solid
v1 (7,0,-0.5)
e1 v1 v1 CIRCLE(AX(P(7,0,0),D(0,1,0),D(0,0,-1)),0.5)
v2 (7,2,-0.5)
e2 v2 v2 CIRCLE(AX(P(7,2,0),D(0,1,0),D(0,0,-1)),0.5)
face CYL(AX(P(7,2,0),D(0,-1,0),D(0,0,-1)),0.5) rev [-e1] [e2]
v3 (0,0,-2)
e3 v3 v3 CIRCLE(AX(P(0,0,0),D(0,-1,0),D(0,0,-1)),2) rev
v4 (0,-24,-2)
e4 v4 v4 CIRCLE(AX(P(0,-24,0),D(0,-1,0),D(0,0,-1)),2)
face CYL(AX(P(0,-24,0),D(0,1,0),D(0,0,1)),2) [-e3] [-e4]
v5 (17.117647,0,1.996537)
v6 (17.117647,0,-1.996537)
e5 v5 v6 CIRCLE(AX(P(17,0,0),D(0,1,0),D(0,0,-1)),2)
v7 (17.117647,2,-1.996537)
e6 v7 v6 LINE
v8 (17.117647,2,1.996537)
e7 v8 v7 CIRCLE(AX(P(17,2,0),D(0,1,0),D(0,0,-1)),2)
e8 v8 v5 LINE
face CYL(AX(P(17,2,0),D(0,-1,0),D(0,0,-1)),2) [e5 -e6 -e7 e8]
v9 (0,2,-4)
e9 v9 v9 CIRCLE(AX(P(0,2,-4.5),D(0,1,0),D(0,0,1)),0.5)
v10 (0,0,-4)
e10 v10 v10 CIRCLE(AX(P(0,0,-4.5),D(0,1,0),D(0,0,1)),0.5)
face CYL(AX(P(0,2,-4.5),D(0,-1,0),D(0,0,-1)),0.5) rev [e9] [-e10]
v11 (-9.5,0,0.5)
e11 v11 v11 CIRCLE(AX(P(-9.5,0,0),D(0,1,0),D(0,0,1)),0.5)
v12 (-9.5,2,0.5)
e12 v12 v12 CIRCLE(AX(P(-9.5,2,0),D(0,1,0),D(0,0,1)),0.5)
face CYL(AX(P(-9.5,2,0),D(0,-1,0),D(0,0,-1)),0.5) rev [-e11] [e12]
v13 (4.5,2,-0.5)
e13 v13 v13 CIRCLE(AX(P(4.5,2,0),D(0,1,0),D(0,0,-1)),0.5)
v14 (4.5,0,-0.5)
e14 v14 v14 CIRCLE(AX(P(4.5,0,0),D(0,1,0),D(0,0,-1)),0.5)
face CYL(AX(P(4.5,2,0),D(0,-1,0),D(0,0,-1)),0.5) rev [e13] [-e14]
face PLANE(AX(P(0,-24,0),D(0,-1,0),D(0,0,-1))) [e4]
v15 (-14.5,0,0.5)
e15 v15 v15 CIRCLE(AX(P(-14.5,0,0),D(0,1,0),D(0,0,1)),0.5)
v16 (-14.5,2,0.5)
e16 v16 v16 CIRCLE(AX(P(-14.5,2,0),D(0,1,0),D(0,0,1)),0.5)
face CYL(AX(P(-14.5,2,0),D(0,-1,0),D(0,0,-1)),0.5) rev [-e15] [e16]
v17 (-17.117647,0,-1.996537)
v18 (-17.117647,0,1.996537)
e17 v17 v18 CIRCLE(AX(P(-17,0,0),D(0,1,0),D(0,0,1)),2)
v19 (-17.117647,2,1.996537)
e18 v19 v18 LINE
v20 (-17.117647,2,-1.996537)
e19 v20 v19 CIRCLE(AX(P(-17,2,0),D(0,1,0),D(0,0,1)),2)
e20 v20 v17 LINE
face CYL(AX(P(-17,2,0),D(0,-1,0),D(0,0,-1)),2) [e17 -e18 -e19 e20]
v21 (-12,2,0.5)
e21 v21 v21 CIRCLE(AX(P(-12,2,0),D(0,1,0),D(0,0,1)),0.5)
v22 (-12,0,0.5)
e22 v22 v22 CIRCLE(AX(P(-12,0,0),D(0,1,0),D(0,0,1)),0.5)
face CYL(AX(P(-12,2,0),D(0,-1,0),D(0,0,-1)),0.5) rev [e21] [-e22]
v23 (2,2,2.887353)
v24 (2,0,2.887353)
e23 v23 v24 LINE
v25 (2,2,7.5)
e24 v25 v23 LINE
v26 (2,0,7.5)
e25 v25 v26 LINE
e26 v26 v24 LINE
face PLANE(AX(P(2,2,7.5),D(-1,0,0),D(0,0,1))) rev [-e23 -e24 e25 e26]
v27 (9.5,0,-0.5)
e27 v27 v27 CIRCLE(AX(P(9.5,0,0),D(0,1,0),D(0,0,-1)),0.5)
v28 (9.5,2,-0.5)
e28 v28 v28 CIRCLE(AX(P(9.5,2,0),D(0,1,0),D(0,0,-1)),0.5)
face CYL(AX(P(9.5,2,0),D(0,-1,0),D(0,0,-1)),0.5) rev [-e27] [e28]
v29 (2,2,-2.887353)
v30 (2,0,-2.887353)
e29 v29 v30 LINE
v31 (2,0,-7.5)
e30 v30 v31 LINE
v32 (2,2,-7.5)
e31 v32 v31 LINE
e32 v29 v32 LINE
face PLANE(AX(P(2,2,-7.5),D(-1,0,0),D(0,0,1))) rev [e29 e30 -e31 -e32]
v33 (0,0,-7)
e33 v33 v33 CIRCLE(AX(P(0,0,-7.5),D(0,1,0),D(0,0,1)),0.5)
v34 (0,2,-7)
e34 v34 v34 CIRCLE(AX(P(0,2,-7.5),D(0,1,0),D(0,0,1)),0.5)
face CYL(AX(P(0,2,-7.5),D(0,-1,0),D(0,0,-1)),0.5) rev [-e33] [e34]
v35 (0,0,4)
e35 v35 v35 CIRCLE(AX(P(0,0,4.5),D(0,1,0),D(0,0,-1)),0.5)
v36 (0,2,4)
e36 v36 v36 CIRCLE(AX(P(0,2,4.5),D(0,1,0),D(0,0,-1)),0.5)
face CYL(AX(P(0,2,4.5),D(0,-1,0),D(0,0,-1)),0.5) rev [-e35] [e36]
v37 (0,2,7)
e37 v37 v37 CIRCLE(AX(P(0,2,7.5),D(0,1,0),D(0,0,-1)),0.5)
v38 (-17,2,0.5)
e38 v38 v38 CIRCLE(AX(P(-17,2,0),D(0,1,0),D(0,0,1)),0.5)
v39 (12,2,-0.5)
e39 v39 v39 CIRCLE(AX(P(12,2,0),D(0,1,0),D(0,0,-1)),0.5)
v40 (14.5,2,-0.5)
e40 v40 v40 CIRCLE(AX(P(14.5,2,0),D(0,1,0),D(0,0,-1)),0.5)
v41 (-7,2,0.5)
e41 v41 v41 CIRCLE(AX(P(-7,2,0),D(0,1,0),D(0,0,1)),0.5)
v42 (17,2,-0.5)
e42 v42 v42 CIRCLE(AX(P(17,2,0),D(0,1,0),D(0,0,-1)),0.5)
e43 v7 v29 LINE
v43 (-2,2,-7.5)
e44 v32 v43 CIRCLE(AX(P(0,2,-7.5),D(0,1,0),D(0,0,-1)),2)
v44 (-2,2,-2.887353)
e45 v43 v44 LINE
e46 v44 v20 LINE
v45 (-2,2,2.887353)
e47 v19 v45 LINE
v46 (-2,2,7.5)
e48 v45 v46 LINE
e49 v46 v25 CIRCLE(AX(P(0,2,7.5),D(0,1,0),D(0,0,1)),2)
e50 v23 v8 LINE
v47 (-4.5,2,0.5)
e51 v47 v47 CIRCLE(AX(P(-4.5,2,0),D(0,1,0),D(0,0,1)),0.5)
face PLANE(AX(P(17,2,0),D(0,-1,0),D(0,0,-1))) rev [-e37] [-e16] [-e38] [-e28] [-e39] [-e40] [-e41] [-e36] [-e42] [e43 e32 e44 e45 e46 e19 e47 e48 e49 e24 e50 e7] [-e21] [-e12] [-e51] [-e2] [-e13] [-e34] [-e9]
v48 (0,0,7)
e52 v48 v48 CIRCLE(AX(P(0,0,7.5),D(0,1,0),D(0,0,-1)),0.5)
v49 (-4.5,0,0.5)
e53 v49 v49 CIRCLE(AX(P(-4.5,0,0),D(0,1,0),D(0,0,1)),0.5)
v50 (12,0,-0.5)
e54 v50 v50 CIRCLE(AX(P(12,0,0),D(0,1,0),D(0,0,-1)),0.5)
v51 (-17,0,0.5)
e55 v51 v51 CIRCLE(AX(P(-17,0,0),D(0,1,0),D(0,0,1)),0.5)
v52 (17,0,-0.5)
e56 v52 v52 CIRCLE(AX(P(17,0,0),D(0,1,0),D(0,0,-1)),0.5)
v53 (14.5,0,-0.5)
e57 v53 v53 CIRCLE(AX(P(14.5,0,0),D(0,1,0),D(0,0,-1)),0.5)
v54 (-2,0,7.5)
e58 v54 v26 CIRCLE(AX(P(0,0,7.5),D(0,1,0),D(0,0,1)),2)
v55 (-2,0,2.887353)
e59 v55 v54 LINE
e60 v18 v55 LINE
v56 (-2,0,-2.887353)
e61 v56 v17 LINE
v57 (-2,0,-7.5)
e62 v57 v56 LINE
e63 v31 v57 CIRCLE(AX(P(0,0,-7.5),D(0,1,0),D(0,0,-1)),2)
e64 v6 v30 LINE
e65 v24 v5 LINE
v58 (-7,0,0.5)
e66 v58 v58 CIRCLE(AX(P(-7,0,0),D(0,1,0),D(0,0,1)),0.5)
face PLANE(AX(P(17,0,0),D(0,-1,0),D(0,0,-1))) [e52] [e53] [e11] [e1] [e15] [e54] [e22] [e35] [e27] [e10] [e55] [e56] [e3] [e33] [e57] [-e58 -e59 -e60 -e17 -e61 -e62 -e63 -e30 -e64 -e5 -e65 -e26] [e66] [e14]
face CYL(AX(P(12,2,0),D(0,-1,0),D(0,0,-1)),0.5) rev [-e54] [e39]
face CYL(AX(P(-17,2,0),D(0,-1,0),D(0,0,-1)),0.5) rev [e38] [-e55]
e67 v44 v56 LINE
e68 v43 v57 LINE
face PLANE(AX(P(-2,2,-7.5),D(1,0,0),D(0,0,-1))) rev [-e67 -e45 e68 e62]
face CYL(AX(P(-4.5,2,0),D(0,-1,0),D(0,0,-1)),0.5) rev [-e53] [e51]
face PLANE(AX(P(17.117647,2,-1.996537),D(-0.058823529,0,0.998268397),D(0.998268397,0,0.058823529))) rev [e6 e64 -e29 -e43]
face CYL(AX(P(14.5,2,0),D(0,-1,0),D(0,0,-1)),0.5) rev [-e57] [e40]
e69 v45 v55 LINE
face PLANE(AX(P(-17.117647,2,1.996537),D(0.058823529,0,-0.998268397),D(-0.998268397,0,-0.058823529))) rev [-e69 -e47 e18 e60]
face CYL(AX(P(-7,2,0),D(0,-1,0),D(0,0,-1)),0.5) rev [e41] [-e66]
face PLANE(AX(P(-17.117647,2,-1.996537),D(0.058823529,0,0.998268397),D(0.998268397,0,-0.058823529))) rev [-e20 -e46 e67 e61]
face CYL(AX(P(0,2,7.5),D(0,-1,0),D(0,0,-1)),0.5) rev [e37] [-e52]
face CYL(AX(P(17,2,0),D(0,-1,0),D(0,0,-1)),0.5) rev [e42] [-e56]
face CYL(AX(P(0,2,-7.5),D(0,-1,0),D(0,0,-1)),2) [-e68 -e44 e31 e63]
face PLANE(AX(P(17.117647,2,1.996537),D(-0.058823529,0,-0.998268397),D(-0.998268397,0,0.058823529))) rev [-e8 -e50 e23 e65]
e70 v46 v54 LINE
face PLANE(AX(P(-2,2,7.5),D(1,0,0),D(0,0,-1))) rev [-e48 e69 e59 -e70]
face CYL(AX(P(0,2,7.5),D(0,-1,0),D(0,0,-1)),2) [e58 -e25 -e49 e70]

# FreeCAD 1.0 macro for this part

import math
import FreeCAD as App
import Part
import Sketcher

V = App.Vector
Q = App.Units.Quantity

doc = App.newDocument("Part")
body = doc.addObject("PartDesign::Body", "Body")

# Sketch on XZ plane
sketch1 = body.newObject("Sketcher::SketchObject", "Sketch")
sketch1.AttachmentSupport = (doc.getObject("XZ_Plane"), [""])
sketch1.MapMode = "FlatFace"
sketch1.addGeometry([
    Part.LineSegment(V(2, -2.9, 0), V(2, -7.5, 0)),  # 0
    Part.ArcOfCircle(Part.Circle(V(0, -7.5, 0), V(0, 0, 1), 2), math.radians(180), math.radians(360)),  # 1
    Part.LineSegment(V(-2, -7.5, 0), V(-2, -2.9, 0)),  # 2
    Part.LineSegment(V(-2, -2.9, 0), V(-17.1, -2, 0)),  # 3
    Part.ArcOfCircle(Part.Circle(V(-17, 0, 0), V(0, 0, 1), 2), math.radians(93), math.radians(267)),  # 4
    Part.LineSegment(V(-17.1, 2, 0), V(-2, 2.9, 0)),  # 5
    Part.LineSegment(V(-2, 2.9, 0), V(-2, 7.5, 0)),  # 6
    Part.ArcOfCircle(Part.Circle(V(0, 7.5, 0), V(0, 0, 1), 2), math.radians(0), math.radians(180)),  # 7
    Part.LineSegment(V(2, 7.5, 0), V(2, 2.9, 0)),  # 8
    Part.LineSegment(V(2, 2.9, 0), V(17.1, 2, 0)),  # 9
    Part.ArcOfCircle(Part.Circle(V(17, 0, 0), V(0, 0, 1), 2), math.radians(-87), math.radians(87)),  # 10
    Part.LineSegment(V(17.1, -2, 0), V(2, -2.9, 0)),  # 11
    Part.Circle(V(0, 7.5, 0), V(0, 0, 1), 0.5),  # 12
    Part.Circle(V(0, 4.5, 0), V(0, 0, 1), 0.5),  # 13
    Part.Circle(V(17, 0, 0), V(0, 0, 1), 0.5),  # 14
    Part.Circle(V(14.5, 0, 0), V(0, 0, 1), 0.5),  # 15
    Part.Circle(V(12, 0, 0), V(0, 0, 1), 0.5),  # 16
    Part.Circle(V(9.5, 0, 0), V(0, 0, 1), 0.5),  # 17
    Part.Circle(V(7, 0, 0), V(0, 0, 1), 0.5),  # 18
    Part.Circle(V(4.5, 0, 0), V(0, 0, 1), 0.5),  # 19
    Part.Circle(V(0, 0, 0), V(0, 0, 1), 2),  # 20
    Part.Circle(V(-4.5, 0, 0), V(0, 0, 1), 0.5),  # 21
    Part.Circle(V(-7, 0, 0), V(0, 0, 1), 0.5),  # 22
    Part.Circle(V(-9.5, 0, 0), V(0, 0, 1), 0.5),  # 23
    Part.Circle(V(-12, 0, 0), V(0, 0, 1), 0.5),  # 24
    Part.Circle(V(-14.5, 0, 0), V(0, 0, 1), 0.5),  # 25
    Part.Circle(V(-17, 0, 0), V(0, 0, 1), 0.5),  # 26
    Part.Circle(V(0, -4.5, 0), V(0, 0, 1), 0.5),  # 27
    Part.Circle(V(0, -7.5, 0), V(0, 0, 1), 0.5),  # 28
], False)
sketch1.addConstraint([
    Sketcher.Constraint("Tangent", 0, 2, 1, 2),
    Sketcher.Constraint("Tangent", 1, 1, 2, 1),
    Sketcher.Constraint("Coincident", 2, 2, 3, 1),
    Sketcher.Constraint("Tangent", 3, 2, 4, 2),
    Sketcher.Constraint("Tangent", 4, 1, 5, 1),
    Sketcher.Constraint("Coincident", 5, 2, 6, 1),
    Sketcher.Constraint("Tangent", 6, 2, 7, 2),
    Sketcher.Constraint("Tangent", 7, 1, 8, 1),
    Sketcher.Constraint("Coincident", 8, 2, 9, 1),
    Sketcher.Constraint("Tangent", 9, 2, 10, 2),
    Sketcher.Constraint("Tangent", 10, 1, 11, 1),
    Sketcher.Constraint("Coincident", 11, 2, 0, 1),
    Sketcher.Constraint("Vertical", 0),
    Sketcher.Constraint("Vertical", 2),
    Sketcher.Constraint("Vertical", 6),
    Sketcher.Constraint("Vertical", 8),
    Sketcher.Constraint("Coincident", 20, 3, -1, 1),
    Sketcher.Constraint("Coincident", 12, 3, 7, 3),
    Sketcher.Constraint("Coincident", 14, 3, 10, 3),
    Sketcher.Constraint("Coincident", 26, 3, 4, 3),
    Sketcher.Constraint("Coincident", 28, 3, 1, 3),
    Sketcher.Constraint("Equal", 1, 4),
    Sketcher.Constraint("Equal", 4, 7),
    Sketcher.Constraint("Equal", 7, 10),
    Sketcher.Constraint("Equal", 12, 13),
    Sketcher.Constraint("Equal", 13, 14),
    Sketcher.Constraint("Equal", 14, 15),
    Sketcher.Constraint("Equal", 15, 16),
    Sketcher.Constraint("Equal", 16, 17),
    Sketcher.Constraint("Equal", 17, 18),
    Sketcher.Constraint("Equal", 18, 19),
    Sketcher.Constraint("Equal", 10, 20),
    Sketcher.Constraint("Equal", 19, 21),
    Sketcher.Constraint("Equal", 21, 22),
    Sketcher.Constraint("Equal", 22, 23),
    Sketcher.Constraint("Equal", 23, 24),
    Sketcher.Constraint("Equal", 24, 25),
    Sketcher.Constraint("Equal", 25, 26),
    Sketcher.Constraint("Equal", 26, 27),
    Sketcher.Constraint("Equal", 27, 28),
    Sketcher.Constraint("Symmetric", 1, 3, 7, 3, -1, 1),
    Sketcher.Constraint("Symmetric", 4, 3, 10, 3, -1, 1),
    Sketcher.Constraint("Symmetric", 19, 3, 21, 3, -1, 1),
    Sketcher.Constraint("Symmetric", 18, 3, 22, 3, -1, 1),
    Sketcher.Constraint("Symmetric", 17, 3, 23, 3, -1, 1),
    Sketcher.Constraint("Symmetric", 16, 3, 24, 3, -1, 1),
    Sketcher.Constraint("Symmetric", 15, 3, 25, 3, -1, 1),
    Sketcher.Constraint("Symmetric", 13, 3, 27, 3, -1, 1),
    Sketcher.Constraint("Symmetric", 5, 2, 8, 2, -2),
    Sketcher.Constraint("Symmetric", 3, 2, 10, 1, -2),
    Sketcher.Constraint("PointOnObject", 13, 3, -2),
    Sketcher.Constraint("PointOnObject", 15, 3, -1),
    Sketcher.Constraint("PointOnObject", 16, 3, -1),
    Sketcher.Constraint("PointOnObject", 17, 3, -1),
    Sketcher.Constraint("PointOnObject", 18, 3, -1),
    Sketcher.Constraint("PointOnObject", 19, 3, -1),
    Sketcher.Constraint("Parallel", 3, 9),
    Sketcher.Constraint("Diameter", 12, Q("1 mm")),
    Sketcher.Constraint("Diameter", 20, Q("4 mm")),
    Sketcher.Constraint("DistanceX", 4, 3, -1, 1, Q("17 mm")),
    Sketcher.Constraint("DistanceX", -1, 1, 16, 3, Q("12 mm")),
    Sketcher.Constraint("DistanceX", -1, 1, 18, 3, Q("7 mm")),
    Sketcher.Constraint("DistanceY", 1, 3, 7, 3, Q("15 mm")),
    Sketcher.Constraint("DistanceY", 13, 3, 7, 3, Q("3 mm")),
    Sketcher.Constraint("DistanceX", 17, 3, 15, 3, Q("5 mm")),
    Sketcher.Constraint("DistanceX", 19, 3, 17, 3, Q("5 mm")),
    Sketcher.Constraint("DistanceX", -1, 1, 15, 3, Q("14.5 mm")),
    Sketcher.Constraint("Distance", 3, Q("15.14387 mm")),
])
pad1 = body.newObject("PartDesign::Pad", "Pad")
pad1.Profile = sketch1
pad1.Length = 2
pad1.Reversed = True

# Sketch on XZ plane
sketch2 = body.newObject("Sketcher::SketchObject", "Sketch001")
sketch2.AttachmentSupport = (doc.getObject("XZ_Plane"), [""])
sketch2.MapMode = "FlatFace"
sketch2.AttachmentOffset = App.Placement(V(0, 0, -2), App.Rotation())
sketch2.addGeometry(Part.Circle(V(0, 0, 0), V(0, 0, 1), 2), False)
sketch2.addConstraint([
    Sketcher.Constraint("Coincident", 0, 3, -1, 1),
    Sketcher.Constraint("Diameter", 0, Q("4 mm")),
])
pad2 = body.newObject("PartDesign::Pad", "Pad001")
pad2.Profile = sketch2
pad2.Length = 26

doc.recompute()
